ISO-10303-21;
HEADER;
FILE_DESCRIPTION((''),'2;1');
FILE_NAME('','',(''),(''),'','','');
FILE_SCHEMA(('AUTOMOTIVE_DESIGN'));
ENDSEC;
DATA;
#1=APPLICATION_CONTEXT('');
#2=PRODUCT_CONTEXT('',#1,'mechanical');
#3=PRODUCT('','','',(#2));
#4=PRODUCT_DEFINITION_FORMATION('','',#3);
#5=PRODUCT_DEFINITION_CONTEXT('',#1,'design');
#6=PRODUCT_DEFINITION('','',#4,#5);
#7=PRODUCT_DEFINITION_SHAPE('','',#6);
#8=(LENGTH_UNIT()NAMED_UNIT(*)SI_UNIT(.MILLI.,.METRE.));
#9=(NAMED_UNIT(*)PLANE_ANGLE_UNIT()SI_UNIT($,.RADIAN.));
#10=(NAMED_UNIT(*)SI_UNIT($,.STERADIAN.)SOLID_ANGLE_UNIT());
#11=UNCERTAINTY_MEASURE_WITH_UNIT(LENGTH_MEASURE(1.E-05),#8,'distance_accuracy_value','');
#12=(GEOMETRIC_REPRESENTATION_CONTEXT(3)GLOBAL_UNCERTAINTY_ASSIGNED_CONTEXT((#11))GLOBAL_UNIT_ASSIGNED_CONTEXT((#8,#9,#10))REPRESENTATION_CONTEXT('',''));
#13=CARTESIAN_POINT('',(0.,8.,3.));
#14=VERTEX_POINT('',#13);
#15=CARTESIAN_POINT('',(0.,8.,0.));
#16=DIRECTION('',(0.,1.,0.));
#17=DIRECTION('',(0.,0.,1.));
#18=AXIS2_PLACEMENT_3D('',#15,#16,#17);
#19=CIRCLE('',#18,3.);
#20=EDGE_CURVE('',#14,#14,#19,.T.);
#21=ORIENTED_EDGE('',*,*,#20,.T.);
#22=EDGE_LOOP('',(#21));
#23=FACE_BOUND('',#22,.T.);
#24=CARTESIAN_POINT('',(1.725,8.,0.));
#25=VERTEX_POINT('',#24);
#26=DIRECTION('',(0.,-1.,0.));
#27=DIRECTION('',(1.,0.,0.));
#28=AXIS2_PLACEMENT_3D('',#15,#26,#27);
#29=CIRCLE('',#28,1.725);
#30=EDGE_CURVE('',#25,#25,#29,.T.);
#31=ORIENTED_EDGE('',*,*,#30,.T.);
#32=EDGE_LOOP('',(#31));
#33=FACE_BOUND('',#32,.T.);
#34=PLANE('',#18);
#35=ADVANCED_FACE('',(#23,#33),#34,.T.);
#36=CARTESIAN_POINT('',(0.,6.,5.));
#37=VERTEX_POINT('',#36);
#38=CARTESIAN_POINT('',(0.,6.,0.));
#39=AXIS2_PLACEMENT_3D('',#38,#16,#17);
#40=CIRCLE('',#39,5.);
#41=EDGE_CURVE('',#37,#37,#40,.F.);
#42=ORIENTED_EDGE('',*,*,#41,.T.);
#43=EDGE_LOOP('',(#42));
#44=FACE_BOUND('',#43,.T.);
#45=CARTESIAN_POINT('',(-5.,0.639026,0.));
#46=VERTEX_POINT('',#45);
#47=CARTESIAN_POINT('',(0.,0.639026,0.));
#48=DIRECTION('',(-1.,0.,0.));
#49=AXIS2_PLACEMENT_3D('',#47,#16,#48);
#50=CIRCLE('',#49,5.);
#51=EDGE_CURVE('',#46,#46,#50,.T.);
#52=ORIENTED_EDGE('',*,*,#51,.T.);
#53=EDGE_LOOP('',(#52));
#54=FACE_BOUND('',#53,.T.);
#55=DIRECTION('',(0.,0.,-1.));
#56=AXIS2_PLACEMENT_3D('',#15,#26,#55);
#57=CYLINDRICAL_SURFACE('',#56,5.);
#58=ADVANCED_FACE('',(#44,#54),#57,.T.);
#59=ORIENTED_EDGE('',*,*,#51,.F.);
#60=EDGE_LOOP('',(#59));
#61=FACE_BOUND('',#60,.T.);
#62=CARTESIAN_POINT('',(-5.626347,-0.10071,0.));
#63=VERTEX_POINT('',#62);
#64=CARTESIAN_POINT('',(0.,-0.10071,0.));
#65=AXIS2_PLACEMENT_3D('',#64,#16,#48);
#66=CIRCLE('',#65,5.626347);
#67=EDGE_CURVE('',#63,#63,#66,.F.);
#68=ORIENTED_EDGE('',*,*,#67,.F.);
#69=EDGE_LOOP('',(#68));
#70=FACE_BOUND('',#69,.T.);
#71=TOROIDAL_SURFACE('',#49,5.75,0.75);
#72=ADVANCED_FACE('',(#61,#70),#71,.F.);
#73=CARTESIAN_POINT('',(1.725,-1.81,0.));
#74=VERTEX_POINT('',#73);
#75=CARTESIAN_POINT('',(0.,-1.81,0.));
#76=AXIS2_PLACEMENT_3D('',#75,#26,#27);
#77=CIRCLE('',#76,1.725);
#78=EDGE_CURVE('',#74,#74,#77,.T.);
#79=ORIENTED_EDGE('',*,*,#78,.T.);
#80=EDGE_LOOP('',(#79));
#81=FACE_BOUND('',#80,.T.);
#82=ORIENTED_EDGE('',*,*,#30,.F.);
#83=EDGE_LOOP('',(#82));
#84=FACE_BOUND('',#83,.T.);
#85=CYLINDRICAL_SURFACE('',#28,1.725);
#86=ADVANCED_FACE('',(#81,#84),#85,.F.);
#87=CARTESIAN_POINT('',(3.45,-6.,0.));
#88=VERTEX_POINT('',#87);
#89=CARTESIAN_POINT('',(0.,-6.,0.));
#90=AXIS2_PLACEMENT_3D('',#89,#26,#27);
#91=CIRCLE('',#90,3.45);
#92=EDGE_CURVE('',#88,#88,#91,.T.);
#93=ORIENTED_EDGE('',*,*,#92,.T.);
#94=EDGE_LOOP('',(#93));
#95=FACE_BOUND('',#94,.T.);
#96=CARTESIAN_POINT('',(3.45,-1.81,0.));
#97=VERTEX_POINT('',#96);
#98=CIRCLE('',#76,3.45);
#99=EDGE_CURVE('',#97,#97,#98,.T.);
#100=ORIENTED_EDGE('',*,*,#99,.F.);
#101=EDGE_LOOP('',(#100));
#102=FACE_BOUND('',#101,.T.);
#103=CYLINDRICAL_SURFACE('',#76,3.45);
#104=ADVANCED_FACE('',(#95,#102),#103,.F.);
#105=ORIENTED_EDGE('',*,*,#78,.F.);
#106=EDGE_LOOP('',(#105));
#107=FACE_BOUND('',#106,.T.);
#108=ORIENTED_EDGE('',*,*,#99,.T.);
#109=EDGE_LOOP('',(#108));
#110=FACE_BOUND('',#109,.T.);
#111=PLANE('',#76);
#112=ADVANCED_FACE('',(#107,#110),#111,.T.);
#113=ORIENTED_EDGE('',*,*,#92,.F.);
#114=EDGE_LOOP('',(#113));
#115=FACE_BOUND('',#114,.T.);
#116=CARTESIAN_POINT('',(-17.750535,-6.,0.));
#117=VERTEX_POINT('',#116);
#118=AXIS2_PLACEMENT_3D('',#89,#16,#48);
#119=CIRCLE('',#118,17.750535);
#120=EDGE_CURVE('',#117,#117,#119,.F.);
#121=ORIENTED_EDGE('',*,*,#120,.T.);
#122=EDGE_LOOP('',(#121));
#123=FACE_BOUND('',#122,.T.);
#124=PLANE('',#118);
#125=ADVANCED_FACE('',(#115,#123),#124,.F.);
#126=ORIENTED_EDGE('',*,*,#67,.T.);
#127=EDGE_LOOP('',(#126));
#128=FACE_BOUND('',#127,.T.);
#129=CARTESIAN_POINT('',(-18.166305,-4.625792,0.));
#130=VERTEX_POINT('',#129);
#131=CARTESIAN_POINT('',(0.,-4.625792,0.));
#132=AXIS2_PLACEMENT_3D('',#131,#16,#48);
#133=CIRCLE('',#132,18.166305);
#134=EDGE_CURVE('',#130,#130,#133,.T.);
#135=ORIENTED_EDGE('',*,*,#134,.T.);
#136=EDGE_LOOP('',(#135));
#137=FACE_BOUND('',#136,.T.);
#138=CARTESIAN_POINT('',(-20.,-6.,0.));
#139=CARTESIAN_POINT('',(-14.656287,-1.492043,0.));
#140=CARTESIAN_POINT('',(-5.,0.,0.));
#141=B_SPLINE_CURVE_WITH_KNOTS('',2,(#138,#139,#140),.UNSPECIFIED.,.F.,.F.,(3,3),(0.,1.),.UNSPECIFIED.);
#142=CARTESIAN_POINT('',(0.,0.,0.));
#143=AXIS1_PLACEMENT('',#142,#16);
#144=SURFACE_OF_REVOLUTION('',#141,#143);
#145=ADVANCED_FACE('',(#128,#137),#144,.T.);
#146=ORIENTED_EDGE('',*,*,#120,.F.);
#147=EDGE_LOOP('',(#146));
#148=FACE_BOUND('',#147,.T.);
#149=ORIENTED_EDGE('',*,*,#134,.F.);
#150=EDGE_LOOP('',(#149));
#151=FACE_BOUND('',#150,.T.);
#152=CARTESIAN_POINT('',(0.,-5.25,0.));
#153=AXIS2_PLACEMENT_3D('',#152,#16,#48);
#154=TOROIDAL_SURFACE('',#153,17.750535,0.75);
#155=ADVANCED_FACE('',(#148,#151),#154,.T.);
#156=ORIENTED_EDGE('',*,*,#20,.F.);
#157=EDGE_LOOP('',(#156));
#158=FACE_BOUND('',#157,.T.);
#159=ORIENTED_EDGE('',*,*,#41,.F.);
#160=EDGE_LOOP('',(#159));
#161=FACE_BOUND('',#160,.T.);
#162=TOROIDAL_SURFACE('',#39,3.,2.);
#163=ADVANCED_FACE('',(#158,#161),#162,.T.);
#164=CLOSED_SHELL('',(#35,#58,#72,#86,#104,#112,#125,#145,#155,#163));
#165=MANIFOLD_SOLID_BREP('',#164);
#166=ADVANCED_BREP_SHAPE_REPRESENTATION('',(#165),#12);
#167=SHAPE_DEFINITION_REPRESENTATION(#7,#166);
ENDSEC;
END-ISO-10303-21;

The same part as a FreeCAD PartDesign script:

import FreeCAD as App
import Part
import Sketcher

V = App.Vector
Q = App.Units.Quantity


def edges_at(feature, points):
    """Names of the edges that pass closest to the given points."""
    edges = feature.Shape.Edges
    near = lambda p: min(range(len(edges)), key=lambda i: edges[i].distToShape(Part.Vertex(*p))[0])
    return sorted({f"Edge{near(p) + 1}" for p in points})

doc = App.newDocument("Part")
body = doc.addObject("PartDesign::Body", "Body")

sketch1 = body.newObject("Sketcher::SketchObject", "Sketch")
sketch1.AttachmentSupport = (doc.getObject("XZ_Plane"), [""])
sketch1.MapMode = "FlatFace"
sketch1.addGeometry(Part.Circle(V(0, 0, 0), V(0, 0, 1), 5), False)
sketch1.addConstraint([
    Sketcher.Constraint("Coincident", 0, 3, -1, 1),
    Sketcher.Constraint("Diameter", 0, Q("10 mm")),
])
pad1 = body.newObject("PartDesign::Pad", "Pad")
pad1.Profile = sketch1
pad1.Length = 8
pad1.Reversed = True

sketch2 = body.newObject("Sketcher::SketchObject", "Sketch001")
sketch2.AttachmentSupport = (doc.getObject("XY_Plane"), [""])
sketch2.MapMode = "FlatFace"
sketch2.addGeometry([
    Part.BSplineCurve([V(-20, -6, 0), V(-14.656287, -1.492043, 0), V(-5, 0, 0)], [3, 3], [0, 1], False, 2, [1, 1, 1], False),
    Part.LineSegment(V(-20, -6, 0), V(0, -6, 0)),
    Part.LineSegment(V(0, -6, 0), V(0, 0, 0)),
    Part.LineSegment(V(0, 0, 0), V(-5, 0, 0)),
], False)
sketch2.addConstraint([
    Sketcher.Constraint("Block", 0),
    Sketcher.Constraint("Coincident", 0, 1, 1, 1),
    Sketcher.Constraint("Coincident", 1, 2, 2, 1),
    Sketcher.Constraint("Coincident", 2, 2, 3, 1),
    Sketcher.Constraint("Coincident", 3, 2, 0, 2),
    Sketcher.Constraint("Horizontal", 1),
    Sketcher.Constraint("Vertical", 2),
    Sketcher.Constraint("Horizontal", 3),
    Sketcher.Constraint("PointOnObject", 1, 2, -2),
])
revolution = body.newObject("PartDesign::Revolution", "Revolution")
revolution.Profile = sketch2
revolution.ReferenceAxis = (sketch2, ["V_Axis"])
revolution.Angle = 360

sketch3 = body.newObject("Sketcher::SketchObject", "Sketch002")
sketch3.AttachmentSupport = (doc.getObject("XZ_Plane"), [""])
sketch3.MapMode = "FlatFace"
sketch3.AttachmentOffset = App.Placement(V(0, 0, 6), App.Rotation())
sketch3.addGeometry(Part.Circle(V(0, 0, 0), V(0, 0, 1), 3.5), False)
sketch3.addConstraint([
    Sketcher.Constraint("Coincident", 0, 3, -1, 1),
    Sketcher.Constraint("Diameter", 0, Q("6.9 mm")),
])
pocket1 = body.newObject("PartDesign::Pocket", "Pocket")
pocket1.Profile = sketch3
pocket1.Length = 4.19

sketch4 = body.newObject("Sketcher::SketchObject", "Sketch003")
sketch4.AttachmentSupport = (doc.getObject("XZ_Plane"), [""])
sketch4.MapMode = "FlatFace"
sketch4.AttachmentOffset = App.Placement(V(0, 0, 1.81), App.Rotation())
sketch4.addGeometry(Part.Circle(V(0, 0, 0), V(0, 0, 1), 1.7), False)
sketch4.addConstraint([
    Sketcher.Constraint("Coincident", 0, 3, -1, 1),
    Sketcher.Constraint("Diameter", 0, Q("3.45 mm")),
])
pocket2 = body.newObject("PartDesign::Pocket", "Pocket001")
pocket2.Profile = sketch4
pocket2.Type = "ThroughAll"
doc.recompute()

fillet = body.newObject("PartDesign::Fillet", "Fillet")
fillet.Base = (pocket2, edges_at(pocket2, [(20, -6, 0), (3.536, 0, -3.536)]))
fillet.Radius = 0.75
doc.recompute()

fillet2 = body.newObject("PartDesign::Fillet", "Fillet001")
fillet2.Base = (fillet, edges_at(fillet, [(0, 8, -5)]))
fillet2.Radius = 2

doc.recompute()
